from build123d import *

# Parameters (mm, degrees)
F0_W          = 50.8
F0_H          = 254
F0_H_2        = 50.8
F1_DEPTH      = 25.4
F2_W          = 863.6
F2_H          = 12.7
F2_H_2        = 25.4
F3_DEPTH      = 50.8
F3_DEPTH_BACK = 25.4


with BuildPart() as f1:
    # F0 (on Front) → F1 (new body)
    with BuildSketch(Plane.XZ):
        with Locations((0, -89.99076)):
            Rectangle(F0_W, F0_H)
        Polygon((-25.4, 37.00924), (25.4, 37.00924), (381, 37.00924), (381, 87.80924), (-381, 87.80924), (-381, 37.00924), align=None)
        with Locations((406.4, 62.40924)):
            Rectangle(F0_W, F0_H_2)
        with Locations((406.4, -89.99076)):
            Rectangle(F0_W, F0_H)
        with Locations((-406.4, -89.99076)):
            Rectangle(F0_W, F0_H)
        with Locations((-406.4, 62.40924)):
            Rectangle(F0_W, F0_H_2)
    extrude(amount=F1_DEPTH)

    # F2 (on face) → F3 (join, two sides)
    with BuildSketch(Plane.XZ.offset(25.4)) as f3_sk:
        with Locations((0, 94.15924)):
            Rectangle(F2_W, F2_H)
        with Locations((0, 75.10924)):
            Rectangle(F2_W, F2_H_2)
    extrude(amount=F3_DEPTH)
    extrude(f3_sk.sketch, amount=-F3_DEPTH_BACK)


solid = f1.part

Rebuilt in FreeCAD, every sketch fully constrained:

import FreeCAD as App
import Part
import Sketcher

V = App.Vector
Q = App.Units.Quantity


def add_polygon(sketch, points):
    """Adds a closed chain of lines whose ends are joined by coincident constraints."""
    first, n = sketch.GeometryCount, len(points)
    for a, b in zip(points, points[1:] + points[:1]):
        sketch.addGeometry(Part.LineSegment(App.Vector(*a, 0), App.Vector(*b, 0)), False)
    for i in range(n):
        sketch.addConstraint(Sketcher.Constraint("Coincident", first + i, 2, first + (i + 1) % n, 1))

doc = App.newDocument("Part")
body = doc.addObject("PartDesign::Body", "Body")

sketch1 = body.newObject("Sketcher::SketchObject", "Sketch")
sketch1.AttachmentSupport = (doc.getObject("XZ_Plane"), [""])
sketch1.MapMode = "FlatFace"
add_polygon(sketch1, [(-25, 37), (-25, -217), (25, -217), (25, 37), (381, 37), (381, -217), (432, -217), (432, 88), (-432, 88), (-432, -217), (-381, -217), (-381, 37)])
sketch1.addConstraint([
    Sketcher.Constraint("Vertical", 0),
    Sketcher.Constraint("Horizontal", 1),
    Sketcher.Constraint("Vertical", 2),
    Sketcher.Constraint("Horizontal", 3),
    Sketcher.Constraint("Vertical", 4),
    Sketcher.Constraint("Horizontal", 5),
    Sketcher.Constraint("Vertical", 6),
    Sketcher.Constraint("Horizontal", 7),
    Sketcher.Constraint("Vertical", 8),
    Sketcher.Constraint("Horizontal", 9),
    Sketcher.Constraint("Vertical", 10),
    Sketcher.Constraint("Horizontal", 11),
    Sketcher.Constraint("Symmetric", 5, 2, 8, 2, -2),
    Sketcher.Constraint("Symmetric", 3, 2, 10, 2, -2),
    Sketcher.Constraint("Horizontal", 1, 2, 4, 2),
    Sketcher.Constraint("Equal", 1, 5),
    Sketcher.Constraint("Equal", 3, 11),
    Sketcher.Constraint("DistanceX", 1, 1, 1, 2, Q("2 in")),
    Sketcher.Constraint("DistanceX", 3, 1, 3, 2, Q("14 in")),
    Sketcher.Constraint("DistanceY", 0, 2, 0, 1, Q("10 in")),
    Sketcher.Constraint("DistanceY", 6, 1, 6, 2, Q("12 in")),
    Sketcher.Constraint("DistanceY", 0, 2, -1, 1, 216.99076),
])
pad1 = body.newObject("PartDesign::Pad", "Pad")
pad1.Profile = sketch1
pad1.Length = Q("1 in")

sketch2 = body.newObject("Sketcher::SketchObject", "Sketch001")
sketch2.AttachmentSupport = (doc.getObject("XZ_Plane"), [""])
sketch2.MapMode = "FlatFace"
sketch2.AttachmentOffset = App.Placement(V(0, 0, 1 * 25.4), App.Rotation())
add_polygon(sketch2, [(-432, 101), (-432, 62), (432, 62), (432, 101)])
sketch2.addConstraint([
    Sketcher.Constraint("Vertical", 0),
    Sketcher.Constraint("Horizontal", 1),
    Sketcher.Constraint("Vertical", 2),
    Sketcher.Constraint("Horizontal", 3),
    Sketcher.Constraint("DistanceX", 1, 1, 1, 2, Q("34 in")),
    Sketcher.Constraint("DistanceY", 0, 2, 0, 1, Q("1.5 in")),
    Sketcher.Constraint("DistanceX", 0, 2, -1, 1, Q("17 in")),
    Sketcher.Constraint("DistanceY", -1, 1, 0, 2, 62.40924),
])
pad2 = body.newObject("PartDesign::Pad", "Pad001")
pad2.Profile = sketch2
pad2.Type = "TwoLengths"
pad2.Length = Q("2 in")
pad2.Length2 = Q("1 in")

doc.recompute()
